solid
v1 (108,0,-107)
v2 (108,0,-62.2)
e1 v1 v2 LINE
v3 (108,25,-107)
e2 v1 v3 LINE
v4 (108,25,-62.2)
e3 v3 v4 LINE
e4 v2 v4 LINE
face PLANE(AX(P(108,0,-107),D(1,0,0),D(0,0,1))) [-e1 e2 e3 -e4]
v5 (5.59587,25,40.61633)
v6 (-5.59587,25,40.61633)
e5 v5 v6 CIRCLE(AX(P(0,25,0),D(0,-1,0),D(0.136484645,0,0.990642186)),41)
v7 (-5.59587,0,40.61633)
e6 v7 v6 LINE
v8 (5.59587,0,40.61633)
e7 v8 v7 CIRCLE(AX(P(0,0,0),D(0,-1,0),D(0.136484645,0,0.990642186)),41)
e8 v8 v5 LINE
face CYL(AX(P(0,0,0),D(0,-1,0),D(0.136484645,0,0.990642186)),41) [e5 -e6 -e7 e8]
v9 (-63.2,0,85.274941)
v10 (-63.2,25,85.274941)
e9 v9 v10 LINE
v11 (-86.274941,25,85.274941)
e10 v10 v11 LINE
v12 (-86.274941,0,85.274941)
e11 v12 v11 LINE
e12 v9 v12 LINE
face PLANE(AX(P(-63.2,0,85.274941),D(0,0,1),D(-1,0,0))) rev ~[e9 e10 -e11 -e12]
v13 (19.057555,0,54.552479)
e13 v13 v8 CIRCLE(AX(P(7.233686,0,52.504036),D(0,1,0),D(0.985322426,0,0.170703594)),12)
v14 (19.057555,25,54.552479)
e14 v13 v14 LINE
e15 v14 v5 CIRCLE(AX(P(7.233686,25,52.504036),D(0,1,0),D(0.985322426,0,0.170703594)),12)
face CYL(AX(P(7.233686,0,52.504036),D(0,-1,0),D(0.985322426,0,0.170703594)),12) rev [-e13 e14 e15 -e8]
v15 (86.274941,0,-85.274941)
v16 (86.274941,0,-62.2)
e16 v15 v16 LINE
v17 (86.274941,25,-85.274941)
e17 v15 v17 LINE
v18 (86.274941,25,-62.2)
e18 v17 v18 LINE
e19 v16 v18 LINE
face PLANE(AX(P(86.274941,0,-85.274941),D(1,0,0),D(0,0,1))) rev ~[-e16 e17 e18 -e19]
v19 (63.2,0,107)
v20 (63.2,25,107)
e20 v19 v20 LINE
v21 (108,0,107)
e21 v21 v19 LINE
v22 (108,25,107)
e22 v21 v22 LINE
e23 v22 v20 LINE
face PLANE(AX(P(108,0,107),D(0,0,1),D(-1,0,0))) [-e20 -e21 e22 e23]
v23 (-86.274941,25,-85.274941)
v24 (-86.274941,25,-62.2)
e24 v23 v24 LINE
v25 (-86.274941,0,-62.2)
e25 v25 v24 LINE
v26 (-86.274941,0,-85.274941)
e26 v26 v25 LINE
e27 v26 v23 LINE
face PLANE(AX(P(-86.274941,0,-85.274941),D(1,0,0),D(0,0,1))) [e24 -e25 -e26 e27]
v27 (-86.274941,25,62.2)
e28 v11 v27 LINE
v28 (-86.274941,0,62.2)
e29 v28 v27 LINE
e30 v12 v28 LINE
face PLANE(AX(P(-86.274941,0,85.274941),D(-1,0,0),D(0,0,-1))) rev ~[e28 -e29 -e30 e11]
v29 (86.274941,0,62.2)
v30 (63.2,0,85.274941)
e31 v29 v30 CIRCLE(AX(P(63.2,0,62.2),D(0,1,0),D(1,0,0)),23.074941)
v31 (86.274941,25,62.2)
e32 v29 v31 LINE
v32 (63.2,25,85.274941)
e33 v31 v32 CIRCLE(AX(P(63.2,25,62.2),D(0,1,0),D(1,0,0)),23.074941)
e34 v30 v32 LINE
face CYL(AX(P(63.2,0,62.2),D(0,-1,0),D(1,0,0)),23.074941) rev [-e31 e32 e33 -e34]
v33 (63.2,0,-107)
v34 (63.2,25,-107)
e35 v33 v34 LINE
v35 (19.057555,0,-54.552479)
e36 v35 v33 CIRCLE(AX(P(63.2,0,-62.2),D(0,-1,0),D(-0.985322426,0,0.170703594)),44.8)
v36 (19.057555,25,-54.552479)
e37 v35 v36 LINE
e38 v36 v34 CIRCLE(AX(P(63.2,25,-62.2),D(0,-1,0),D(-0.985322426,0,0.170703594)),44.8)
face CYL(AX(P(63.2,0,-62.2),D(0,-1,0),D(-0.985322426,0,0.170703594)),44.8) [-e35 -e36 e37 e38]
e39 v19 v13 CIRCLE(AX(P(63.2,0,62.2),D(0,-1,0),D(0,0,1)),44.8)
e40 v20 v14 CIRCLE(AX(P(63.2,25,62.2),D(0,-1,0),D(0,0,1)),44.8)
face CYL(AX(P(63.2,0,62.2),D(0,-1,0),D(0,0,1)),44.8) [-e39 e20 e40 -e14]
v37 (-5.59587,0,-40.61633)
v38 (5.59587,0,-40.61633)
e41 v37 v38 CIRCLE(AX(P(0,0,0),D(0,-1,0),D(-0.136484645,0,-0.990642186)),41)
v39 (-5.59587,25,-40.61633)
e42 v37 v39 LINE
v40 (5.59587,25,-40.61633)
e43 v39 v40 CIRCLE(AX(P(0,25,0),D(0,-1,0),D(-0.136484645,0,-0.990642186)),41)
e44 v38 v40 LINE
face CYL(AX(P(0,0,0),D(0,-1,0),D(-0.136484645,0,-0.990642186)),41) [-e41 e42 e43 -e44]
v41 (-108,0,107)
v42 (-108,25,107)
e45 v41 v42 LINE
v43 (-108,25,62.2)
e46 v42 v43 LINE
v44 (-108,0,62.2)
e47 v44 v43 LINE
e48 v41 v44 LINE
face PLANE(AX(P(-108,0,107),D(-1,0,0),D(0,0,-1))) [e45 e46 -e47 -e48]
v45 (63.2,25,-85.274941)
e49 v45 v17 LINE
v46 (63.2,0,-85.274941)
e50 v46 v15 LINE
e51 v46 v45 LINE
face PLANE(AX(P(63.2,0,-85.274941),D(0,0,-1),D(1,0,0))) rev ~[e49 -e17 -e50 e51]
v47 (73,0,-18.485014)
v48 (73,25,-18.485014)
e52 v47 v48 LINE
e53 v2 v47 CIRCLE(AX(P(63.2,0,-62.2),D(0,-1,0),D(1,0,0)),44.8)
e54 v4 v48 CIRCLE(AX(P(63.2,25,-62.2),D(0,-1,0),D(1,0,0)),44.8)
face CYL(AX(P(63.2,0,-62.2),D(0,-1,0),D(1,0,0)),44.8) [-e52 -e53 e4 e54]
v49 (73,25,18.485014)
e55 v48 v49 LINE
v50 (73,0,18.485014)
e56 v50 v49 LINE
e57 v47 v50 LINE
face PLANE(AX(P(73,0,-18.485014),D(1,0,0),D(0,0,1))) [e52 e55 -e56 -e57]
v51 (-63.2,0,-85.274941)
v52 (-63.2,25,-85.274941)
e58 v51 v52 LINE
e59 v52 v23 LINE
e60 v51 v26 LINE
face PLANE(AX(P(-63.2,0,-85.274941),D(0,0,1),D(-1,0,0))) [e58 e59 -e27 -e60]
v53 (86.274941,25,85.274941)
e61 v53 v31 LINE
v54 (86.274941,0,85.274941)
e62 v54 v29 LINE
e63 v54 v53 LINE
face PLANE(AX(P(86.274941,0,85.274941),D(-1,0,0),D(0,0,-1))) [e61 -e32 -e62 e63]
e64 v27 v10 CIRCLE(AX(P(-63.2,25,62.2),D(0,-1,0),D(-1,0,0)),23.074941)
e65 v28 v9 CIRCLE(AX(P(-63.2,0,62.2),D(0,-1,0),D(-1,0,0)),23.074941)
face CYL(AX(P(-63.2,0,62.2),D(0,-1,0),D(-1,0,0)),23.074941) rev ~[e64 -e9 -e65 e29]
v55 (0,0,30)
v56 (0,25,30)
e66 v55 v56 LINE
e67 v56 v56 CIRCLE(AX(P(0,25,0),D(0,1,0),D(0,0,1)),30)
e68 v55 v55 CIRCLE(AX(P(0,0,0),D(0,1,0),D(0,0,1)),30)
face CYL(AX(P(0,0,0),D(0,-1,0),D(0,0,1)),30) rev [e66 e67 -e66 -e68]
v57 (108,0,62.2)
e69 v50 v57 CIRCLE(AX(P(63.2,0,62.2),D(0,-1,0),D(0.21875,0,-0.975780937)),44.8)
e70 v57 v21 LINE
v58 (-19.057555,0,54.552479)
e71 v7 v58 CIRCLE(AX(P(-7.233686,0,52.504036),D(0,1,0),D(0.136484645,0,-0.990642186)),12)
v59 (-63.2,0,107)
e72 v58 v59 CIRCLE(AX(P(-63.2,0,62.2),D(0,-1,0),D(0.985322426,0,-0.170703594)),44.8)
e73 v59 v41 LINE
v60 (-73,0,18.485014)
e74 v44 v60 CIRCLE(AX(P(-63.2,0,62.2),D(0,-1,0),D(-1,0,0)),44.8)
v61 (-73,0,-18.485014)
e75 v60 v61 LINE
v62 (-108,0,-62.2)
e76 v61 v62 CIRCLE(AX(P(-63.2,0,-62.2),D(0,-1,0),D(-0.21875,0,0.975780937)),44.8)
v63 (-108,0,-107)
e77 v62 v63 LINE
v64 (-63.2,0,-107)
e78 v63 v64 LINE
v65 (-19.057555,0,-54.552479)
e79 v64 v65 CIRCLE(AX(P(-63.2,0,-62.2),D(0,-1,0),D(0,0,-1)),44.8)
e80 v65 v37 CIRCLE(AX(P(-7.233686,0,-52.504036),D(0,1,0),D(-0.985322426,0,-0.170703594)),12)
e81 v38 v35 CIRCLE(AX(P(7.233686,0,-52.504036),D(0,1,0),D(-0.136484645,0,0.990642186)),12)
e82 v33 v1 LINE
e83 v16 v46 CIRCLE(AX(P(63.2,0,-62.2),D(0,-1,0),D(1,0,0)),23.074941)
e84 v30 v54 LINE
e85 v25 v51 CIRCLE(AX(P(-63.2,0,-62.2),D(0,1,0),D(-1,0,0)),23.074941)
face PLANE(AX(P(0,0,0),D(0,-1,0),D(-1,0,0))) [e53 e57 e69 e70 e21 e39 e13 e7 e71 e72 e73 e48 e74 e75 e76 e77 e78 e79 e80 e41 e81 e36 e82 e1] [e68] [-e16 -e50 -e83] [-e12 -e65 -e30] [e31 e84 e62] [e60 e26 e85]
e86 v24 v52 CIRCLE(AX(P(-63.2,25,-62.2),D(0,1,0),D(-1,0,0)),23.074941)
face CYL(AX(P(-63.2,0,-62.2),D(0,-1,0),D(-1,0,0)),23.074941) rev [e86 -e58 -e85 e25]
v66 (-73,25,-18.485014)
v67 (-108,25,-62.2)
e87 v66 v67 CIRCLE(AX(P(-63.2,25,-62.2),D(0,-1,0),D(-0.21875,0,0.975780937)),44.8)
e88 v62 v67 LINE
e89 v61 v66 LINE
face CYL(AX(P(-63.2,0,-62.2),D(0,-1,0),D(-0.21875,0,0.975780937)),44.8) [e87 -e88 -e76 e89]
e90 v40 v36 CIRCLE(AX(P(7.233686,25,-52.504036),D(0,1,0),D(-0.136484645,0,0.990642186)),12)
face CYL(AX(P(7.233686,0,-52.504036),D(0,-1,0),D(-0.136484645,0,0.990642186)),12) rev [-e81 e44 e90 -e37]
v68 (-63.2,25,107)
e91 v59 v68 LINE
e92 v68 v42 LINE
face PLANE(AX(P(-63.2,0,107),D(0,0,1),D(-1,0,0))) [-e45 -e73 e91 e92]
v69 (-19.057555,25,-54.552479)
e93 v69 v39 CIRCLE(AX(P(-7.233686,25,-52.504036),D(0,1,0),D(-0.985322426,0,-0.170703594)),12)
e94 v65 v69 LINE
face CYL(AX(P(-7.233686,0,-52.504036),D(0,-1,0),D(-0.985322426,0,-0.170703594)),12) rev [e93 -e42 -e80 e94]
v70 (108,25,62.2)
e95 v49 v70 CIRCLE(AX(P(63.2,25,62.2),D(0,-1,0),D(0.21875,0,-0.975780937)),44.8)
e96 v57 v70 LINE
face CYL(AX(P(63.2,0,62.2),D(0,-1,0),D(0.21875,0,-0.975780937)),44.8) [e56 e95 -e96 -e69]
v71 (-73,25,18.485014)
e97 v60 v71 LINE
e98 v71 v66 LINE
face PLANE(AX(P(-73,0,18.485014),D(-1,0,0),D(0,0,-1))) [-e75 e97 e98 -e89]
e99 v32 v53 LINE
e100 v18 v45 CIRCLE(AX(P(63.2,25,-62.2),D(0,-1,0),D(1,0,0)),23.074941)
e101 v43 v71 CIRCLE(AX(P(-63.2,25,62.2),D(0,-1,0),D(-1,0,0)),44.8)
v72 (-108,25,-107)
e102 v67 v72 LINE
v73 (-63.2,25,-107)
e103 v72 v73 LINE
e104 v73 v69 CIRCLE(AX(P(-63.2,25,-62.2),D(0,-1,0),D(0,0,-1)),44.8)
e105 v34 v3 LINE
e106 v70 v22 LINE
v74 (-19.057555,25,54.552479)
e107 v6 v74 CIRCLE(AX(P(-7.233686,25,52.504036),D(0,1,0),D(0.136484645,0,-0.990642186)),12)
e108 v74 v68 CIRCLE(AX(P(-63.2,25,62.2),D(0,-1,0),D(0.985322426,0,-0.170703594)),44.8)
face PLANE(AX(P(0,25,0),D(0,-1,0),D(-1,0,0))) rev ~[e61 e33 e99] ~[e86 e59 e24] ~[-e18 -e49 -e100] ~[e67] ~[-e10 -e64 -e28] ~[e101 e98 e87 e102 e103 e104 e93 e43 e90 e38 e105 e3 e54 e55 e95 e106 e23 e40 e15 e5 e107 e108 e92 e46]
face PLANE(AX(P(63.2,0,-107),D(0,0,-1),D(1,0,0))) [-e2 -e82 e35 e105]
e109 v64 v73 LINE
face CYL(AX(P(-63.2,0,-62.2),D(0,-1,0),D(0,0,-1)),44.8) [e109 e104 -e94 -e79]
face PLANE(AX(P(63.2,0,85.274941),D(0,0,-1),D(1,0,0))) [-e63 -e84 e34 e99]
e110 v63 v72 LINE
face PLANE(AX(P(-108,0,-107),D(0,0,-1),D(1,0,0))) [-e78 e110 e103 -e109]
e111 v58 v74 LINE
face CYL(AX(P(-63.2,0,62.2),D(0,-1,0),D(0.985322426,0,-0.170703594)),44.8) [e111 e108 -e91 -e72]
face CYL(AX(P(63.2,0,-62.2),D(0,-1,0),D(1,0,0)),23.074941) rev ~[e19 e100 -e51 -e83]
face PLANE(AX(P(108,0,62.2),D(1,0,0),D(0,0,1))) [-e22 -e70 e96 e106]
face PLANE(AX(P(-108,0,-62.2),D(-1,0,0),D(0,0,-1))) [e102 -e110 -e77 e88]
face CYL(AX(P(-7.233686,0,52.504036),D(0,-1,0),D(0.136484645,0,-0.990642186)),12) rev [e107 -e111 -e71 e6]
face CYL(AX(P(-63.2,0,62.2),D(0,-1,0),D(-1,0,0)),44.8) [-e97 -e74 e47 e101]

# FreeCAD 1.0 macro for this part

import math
import FreeCAD as App
import Part
import Sketcher
from FreeCAD import Vector

doc = App.newDocument("Part")
body = doc.addObject("PartDesign::Body", "Body")

sketch1 = body.newObject("Sketcher::SketchObject", "Sketch")
sketch1.AttachmentSupport = (doc.getObject("XZ_Plane"), [""])
sketch1.MapMode = "FlatFace"
sketch1.addGeometry(Part.LineSegment(Vector(73, 18.485014, 0), Vector(73, -18.485014, 0)), False)
sketch1.addGeometry(Part.ArcOfCircle(Part.Circle(Vector(63.2, -62.2, 0), Vector(0, 0, 1), 44.8), math.radians(0), math.radians(77.364375)), False)
sketch1.addGeometry(Part.LineSegment(Vector(108, -62.2, 0), Vector(108, -107, 0)), False)
sketch1.addGeometry(Part.LineSegment(Vector(108, -107, 0), Vector(63.2, -107, 0)), False)
sketch1.addGeometry(Part.ArcOfCircle(Part.Circle(Vector(63.2, -62.2, 0), Vector(0, 0, 1), 44.8), math.radians(170.17127), math.radians(270)), False)
sketch1.addGeometry(Part.ArcOfCircle(Part.Circle(Vector(7.233686, -52.504036, 0), Vector(0, 0, 1), 12), math.radians(-9.82873), math.radians(97.844479)), False)
sketch1.addGeometry(Part.ArcOfCircle(Part.Circle(Vector(0, 0, 0), Vector(0, 0, 1), 41), math.radians(-97.844478), math.radians(-82.155522)), False)
sketch1.addGeometry(Part.ArcOfCircle(Part.Circle(Vector(-7.233686, -52.504036, 0), Vector(0, 0, 1), 12), math.radians(82.155521), math.radians(189.82873)), False)
sketch1.addGeometry(Part.ArcOfCircle(Part.Circle(Vector(-63.2, -62.2, 0), Vector(0, 0, 1), 44.8), math.radians(-90), math.radians(9.82873)), False)
sketch1.addGeometry(Part.LineSegment(Vector(-63.2, -107, 0), Vector(-108, -107, 0)), False)
sketch1.addGeometry(Part.LineSegment(Vector(-108, -107, 0), Vector(-108, -62.2, 0)), False)
sketch1.addGeometry(Part.ArcOfCircle(Part.Circle(Vector(-63.2, -62.2, 0), Vector(0, 0, 1), 44.8), math.radians(102.635625), math.radians(180)), False)
sketch1.addGeometry(Part.LineSegment(Vector(-73, -18.485014, 0), Vector(-73, 18.485014, 0)), False)
sketch1.addGeometry(Part.ArcOfCircle(Part.Circle(Vector(-63.2, 62.2, 0), Vector(0, 0, 1), 44.8), math.radians(180), math.radians(257.364375)), False)
sketch1.addGeometry(Part.LineSegment(Vector(-108, 62.2, 0), Vector(-108, 107, 0)), False)
sketch1.addGeometry(Part.LineSegment(Vector(-108, 107, 0), Vector(-63.2, 107, 0)), False)
sketch1.addGeometry(Part.ArcOfCircle(Part.Circle(Vector(-63.2, 62.2, 0), Vector(0, 0, 1), 44.8), math.radians(-9.82873), math.radians(90)), False)
sketch1.addGeometry(Part.ArcOfCircle(Part.Circle(Vector(-7.233686, 52.504036, 0), Vector(0, 0, 1), 12), math.radians(170.17127), math.radians(277.844479)), False)
sketch1.addGeometry(Part.ArcOfCircle(Part.Circle(Vector(0, 0, 0), Vector(0, 0, 1), 41), math.radians(82.155522), math.radians(97.844478)), False)
sketch1.addGeometry(Part.ArcOfCircle(Part.Circle(Vector(7.233686, 52.504036, 0), Vector(0, 0, 1), 12), math.radians(-97.844479), math.radians(9.82873)), False)
sketch1.addGeometry(Part.ArcOfCircle(Part.Circle(Vector(63.2, 62.2, 0), Vector(0, 0, 1), 44.8), math.radians(90), math.radians(189.82873)), False)
sketch1.addGeometry(Part.LineSegment(Vector(63.2, 107, 0), Vector(108, 107, 0)), False)
sketch1.addGeometry(Part.LineSegment(Vector(108, 107, 0), Vector(108, 62.2, 0)), False)
sketch1.addGeometry(Part.ArcOfCircle(Part.Circle(Vector(63.2, 62.2, 0), Vector(0, 0, 1), 44.8), math.radians(-77.364375), math.radians(0)), False)
sketch1.addGeometry(Part.LineSegment(Vector(86.274941, 85.274941, 0), Vector(63.2, 85.274941, 0)), False)
sketch1.addGeometry(Part.ArcOfCircle(Part.Circle(Vector(63.2, 62.2, 0), Vector(0, 0, 1), 23.074941), math.radians(90), math.radians(360)), False)
sketch1.addGeometry(Part.LineSegment(Vector(86.274941, 62.2, 0), Vector(86.274941, 85.274941, 0)), False)
sketch1.addGeometry(Part.LineSegment(Vector(-86.274941, 85.274941, 0), Vector(-86.274941, 62.2, 0)), False)
sketch1.addGeometry(Part.ArcOfCircle(Part.Circle(Vector(-63.2, 62.2, 0), Vector(0, 0, 1), 23.074941), math.radians(180), math.radians(450)), False)
sketch1.addGeometry(Part.LineSegment(Vector(-63.2, 85.274941, 0), Vector(-86.274941, 85.274941, 0)), False)
sketch1.addGeometry(Part.LineSegment(Vector(86.274941, -85.274941, 0), Vector(86.274941, -62.2, 0)), False)
sketch1.addGeometry(Part.ArcOfCircle(Part.Circle(Vector(63.2, -62.2, 0), Vector(0, 0, 1), 23.074941), math.radians(0), math.radians(270)), False)
sketch1.addGeometry(Part.LineSegment(Vector(63.2, -85.274941, 0), Vector(86.274941, -85.274941, 0)), False)
sketch1.addGeometry(Part.Circle(Vector(0, 0, 0), Vector(0, 0, 1), 30), False)
sketch1.addGeometry(Part.ArcOfCircle(Part.Circle(Vector(-63.2, -62.2, 0), Vector(0, 0, 1), 23.074941), math.radians(-90), math.radians(180)), False)
sketch1.addGeometry(Part.LineSegment(Vector(-86.274941, -62.2, 0), Vector(-86.274941, -85.274941, 0)), False)
sketch1.addGeometry(Part.LineSegment(Vector(-86.274941, -85.274941, 0), Vector(-63.2, -85.274941, 0)), False)
sketch1.addConstraint(Sketcher.Constraint("Coincident", 0, 2, 1, 2))
sketch1.addConstraint(Sketcher.Constraint("Tangent", 1, 1, 2, 1))
sketch1.addConstraint(Sketcher.Constraint("Coincident", 2, 2, 3, 1))
sketch1.addConstraint(Sketcher.Constraint("Tangent", 3, 2, 4, 2))
sketch1.addConstraint(Sketcher.Constraint("Tangent", 4, 1, 5, 1))
sketch1.addConstraint(Sketcher.Constraint("Tangent", 5, 2, 6, 2))
sketch1.addConstraint(Sketcher.Constraint("Tangent", 6, 1, 7, 1))
sketch1.addConstraint(Sketcher.Constraint("Tangent", 7, 2, 8, 2))
sketch1.addConstraint(Sketcher.Constraint("Tangent", 8, 1, 9, 1))
sketch1.addConstraint(Sketcher.Constraint("Coincident", 9, 2, 10, 1))
sketch1.addConstraint(Sketcher.Constraint("Tangent", 10, 2, 11, 2))
sketch1.addConstraint(Sketcher.Constraint("Coincident", 11, 1, 12, 1))
sketch1.addConstraint(Sketcher.Constraint("Coincident", 12, 2, 13, 2))
sketch1.addConstraint(Sketcher.Constraint("Tangent", 13, 1, 14, 1))
sketch1.addConstraint(Sketcher.Constraint("Coincident", 14, 2, 15, 1))
sketch1.addConstraint(Sketcher.Constraint("Tangent", 15, 2, 16, 2))
sketch1.addConstraint(Sketcher.Constraint("Tangent", 16, 1, 17, 1))
sketch1.addConstraint(Sketcher.Constraint("Tangent", 17, 2, 18, 2))
sketch1.addConstraint(Sketcher.Constraint("Tangent", 18, 1, 19, 1))
sketch1.addConstraint(Sketcher.Constraint("Tangent", 19, 2, 20, 2))
sketch1.addConstraint(Sketcher.Constraint("Tangent", 20, 1, 21, 1))
sketch1.addConstraint(Sketcher.Constraint("Coincident", 21, 2, 22, 1))
sketch1.addConstraint(Sketcher.Constraint("Tangent", 22, 2, 23, 2))
sketch1.addConstraint(Sketcher.Constraint("Coincident", 23, 1, 0, 1))
sketch1.addConstraint(Sketcher.Constraint("Tangent", 24, 2, 25, 1))
sketch1.addConstraint(Sketcher.Constraint("Tangent", 25, 2, 26, 1))
sketch1.addConstraint(Sketcher.Constraint("Coincident", 26, 2, 24, 1))
sketch1.addConstraint(Sketcher.Constraint("Tangent", 27, 2, 28, 1))
sketch1.addConstraint(Sketcher.Constraint("Tangent", 28, 2, 29, 1))
sketch1.addConstraint(Sketcher.Constraint("Coincident", 29, 2, 27, 1))
sketch1.addConstraint(Sketcher.Constraint("Tangent", 30, 2, 31, 1))
sketch1.addConstraint(Sketcher.Constraint("Tangent", 31, 2, 32, 1))
sketch1.addConstraint(Sketcher.Constraint("Coincident", 32, 2, 30, 1))
sketch1.addConstraint(Sketcher.Constraint("Tangent", 34, 2, 35, 1))
sketch1.addConstraint(Sketcher.Constraint("Coincident", 35, 2, 36, 1))
sketch1.addConstraint(Sketcher.Constraint("Tangent", 36, 2, 34, 1))
sketch1.addConstraint(Sketcher.Constraint("Vertical", 0))
sketch1.addConstraint(Sketcher.Constraint("Vertical", 2))
sketch1.addConstraint(Sketcher.Constraint("Horizontal", 3))
sketch1.addConstraint(Sketcher.Constraint("Horizontal", 9))
sketch1.addConstraint(Sketcher.Constraint("Vertical", 10))
sketch1.addConstraint(Sketcher.Constraint("Vertical", 12))
sketch1.addConstraint(Sketcher.Constraint("Vertical", 14))
sketch1.addConstraint(Sketcher.Constraint("Horizontal", 15))
sketch1.addConstraint(Sketcher.Constraint("Horizontal", 21))
sketch1.addConstraint(Sketcher.Constraint("Vertical", 22))
sketch1.addConstraint(Sketcher.Constraint("Horizontal", 24))
sketch1.addConstraint(Sketcher.Constraint("Vertical", 26))
sketch1.addConstraint(Sketcher.Constraint("Vertical", 27))
sketch1.addConstraint(Sketcher.Constraint("Horizontal", 29))
sketch1.addConstraint(Sketcher.Constraint("Vertical", 30))
sketch1.addConstraint(Sketcher.Constraint("Horizontal", 32))
sketch1.addConstraint(Sketcher.Constraint("Vertical", 35))
sketch1.addConstraint(Sketcher.Constraint("Horizontal", 36))
sketch1.addConstraint(Sketcher.Constraint("Coincident", 6, 3, -1, 1))
sketch1.addConstraint(Sketcher.Constraint("Coincident", 18, 3, -1, 1))
sketch1.addConstraint(Sketcher.Constraint("Coincident", 33, 3, -1, 1))
sketch1.addConstraint(Sketcher.Constraint("Coincident", 4, 3, 1, 3))
sketch1.addConstraint(Sketcher.Constraint("Coincident", 11, 3, 8, 3))
sketch1.addConstraint(Sketcher.Constraint("Coincident", 16, 3, 13, 3))
sketch1.addConstraint(Sketcher.Constraint("Coincident", 23, 3, 20, 3))
sketch1.addConstraint(Sketcher.Constraint("Coincident", 25, 3, 20, 3))
sketch1.addConstraint(Sketcher.Constraint("Coincident", 28, 3, 13, 3))
sketch1.addConstraint(Sketcher.Constraint("Coincident", 31, 3, 1, 3))
sketch1.addConstraint(Sketcher.Constraint("Coincident", 34, 3, 8, 3))
sketch1.addConstraint(Sketcher.Constraint("Equal", 1, 4))
sketch1.addConstraint(Sketcher.Constraint("Equal", 5, 7))
sketch1.addConstraint(Sketcher.Constraint("Equal", 4, 8))
sketch1.addConstraint(Sketcher.Constraint("Equal", 8, 11))
sketch1.addConstraint(Sketcher.Constraint("Equal", 11, 13))
sketch1.addConstraint(Sketcher.Constraint("Equal", 13, 16))
sketch1.addConstraint(Sketcher.Constraint("Equal", 7, 17))
sketch1.addConstraint(Sketcher.Constraint("Equal", 6, 18))
sketch1.addConstraint(Sketcher.Constraint("Equal", 17, 19))
sketch1.addConstraint(Sketcher.Constraint("Equal", 16, 20))
sketch1.addConstraint(Sketcher.Constraint("Equal", 20, 23))
sketch1.addConstraint(Sketcher.Constraint("Equal", 25, 28))
sketch1.addConstraint(Sketcher.Constraint("Equal", 28, 31))
sketch1.addConstraint(Sketcher.Constraint("Equal", 31, 34))
sketch1.addConstraint(Sketcher.Constraint("Symmetric", 1, 3, 13, 3, -1, 1))
sketch1.addConstraint(Sketcher.Constraint("Symmetric", 8, 3, 20, 3, -1, 1))
sketch1.addConstraint(Sketcher.Constraint("Symmetric", 1, 3, 8, 3, -2))
sketch1.addConstraint(Sketcher.Constraint("Horizontal", 0, 2, 11, 1))
sketch1.addConstraint(Sketcher.Constraint("Diameter", 33, 60.0))
sketch1.addConstraint(Sketcher.Constraint("Radius", 5, 12.0))
sketch1.addConstraint(Sketcher.Constraint("Radius", 6, 41.0))
sketch1.addConstraint(Sketcher.Constraint("Radius", 1, 44.8))
sketch1.addConstraint(Sketcher.Constraint("DistanceX", -1, 1, 0, 2, 73.0))
sketch1.addConstraint(Sketcher.Constraint("DistanceX", -1, 1, 1, 1, 108.0))
sketch1.addConstraint(Sketcher.Constraint("DistanceY", 2, 2, -1, 1, 107.0))
sketch1.addConstraint(Sketcher.Constraint("Radius", 25, 23.074941))
pad1 = body.newObject("PartDesign::Pad", "Pad")
pad1.Profile = sketch1
pad1.Length = 25
pad1.Reversed = True

doc.recompute()
